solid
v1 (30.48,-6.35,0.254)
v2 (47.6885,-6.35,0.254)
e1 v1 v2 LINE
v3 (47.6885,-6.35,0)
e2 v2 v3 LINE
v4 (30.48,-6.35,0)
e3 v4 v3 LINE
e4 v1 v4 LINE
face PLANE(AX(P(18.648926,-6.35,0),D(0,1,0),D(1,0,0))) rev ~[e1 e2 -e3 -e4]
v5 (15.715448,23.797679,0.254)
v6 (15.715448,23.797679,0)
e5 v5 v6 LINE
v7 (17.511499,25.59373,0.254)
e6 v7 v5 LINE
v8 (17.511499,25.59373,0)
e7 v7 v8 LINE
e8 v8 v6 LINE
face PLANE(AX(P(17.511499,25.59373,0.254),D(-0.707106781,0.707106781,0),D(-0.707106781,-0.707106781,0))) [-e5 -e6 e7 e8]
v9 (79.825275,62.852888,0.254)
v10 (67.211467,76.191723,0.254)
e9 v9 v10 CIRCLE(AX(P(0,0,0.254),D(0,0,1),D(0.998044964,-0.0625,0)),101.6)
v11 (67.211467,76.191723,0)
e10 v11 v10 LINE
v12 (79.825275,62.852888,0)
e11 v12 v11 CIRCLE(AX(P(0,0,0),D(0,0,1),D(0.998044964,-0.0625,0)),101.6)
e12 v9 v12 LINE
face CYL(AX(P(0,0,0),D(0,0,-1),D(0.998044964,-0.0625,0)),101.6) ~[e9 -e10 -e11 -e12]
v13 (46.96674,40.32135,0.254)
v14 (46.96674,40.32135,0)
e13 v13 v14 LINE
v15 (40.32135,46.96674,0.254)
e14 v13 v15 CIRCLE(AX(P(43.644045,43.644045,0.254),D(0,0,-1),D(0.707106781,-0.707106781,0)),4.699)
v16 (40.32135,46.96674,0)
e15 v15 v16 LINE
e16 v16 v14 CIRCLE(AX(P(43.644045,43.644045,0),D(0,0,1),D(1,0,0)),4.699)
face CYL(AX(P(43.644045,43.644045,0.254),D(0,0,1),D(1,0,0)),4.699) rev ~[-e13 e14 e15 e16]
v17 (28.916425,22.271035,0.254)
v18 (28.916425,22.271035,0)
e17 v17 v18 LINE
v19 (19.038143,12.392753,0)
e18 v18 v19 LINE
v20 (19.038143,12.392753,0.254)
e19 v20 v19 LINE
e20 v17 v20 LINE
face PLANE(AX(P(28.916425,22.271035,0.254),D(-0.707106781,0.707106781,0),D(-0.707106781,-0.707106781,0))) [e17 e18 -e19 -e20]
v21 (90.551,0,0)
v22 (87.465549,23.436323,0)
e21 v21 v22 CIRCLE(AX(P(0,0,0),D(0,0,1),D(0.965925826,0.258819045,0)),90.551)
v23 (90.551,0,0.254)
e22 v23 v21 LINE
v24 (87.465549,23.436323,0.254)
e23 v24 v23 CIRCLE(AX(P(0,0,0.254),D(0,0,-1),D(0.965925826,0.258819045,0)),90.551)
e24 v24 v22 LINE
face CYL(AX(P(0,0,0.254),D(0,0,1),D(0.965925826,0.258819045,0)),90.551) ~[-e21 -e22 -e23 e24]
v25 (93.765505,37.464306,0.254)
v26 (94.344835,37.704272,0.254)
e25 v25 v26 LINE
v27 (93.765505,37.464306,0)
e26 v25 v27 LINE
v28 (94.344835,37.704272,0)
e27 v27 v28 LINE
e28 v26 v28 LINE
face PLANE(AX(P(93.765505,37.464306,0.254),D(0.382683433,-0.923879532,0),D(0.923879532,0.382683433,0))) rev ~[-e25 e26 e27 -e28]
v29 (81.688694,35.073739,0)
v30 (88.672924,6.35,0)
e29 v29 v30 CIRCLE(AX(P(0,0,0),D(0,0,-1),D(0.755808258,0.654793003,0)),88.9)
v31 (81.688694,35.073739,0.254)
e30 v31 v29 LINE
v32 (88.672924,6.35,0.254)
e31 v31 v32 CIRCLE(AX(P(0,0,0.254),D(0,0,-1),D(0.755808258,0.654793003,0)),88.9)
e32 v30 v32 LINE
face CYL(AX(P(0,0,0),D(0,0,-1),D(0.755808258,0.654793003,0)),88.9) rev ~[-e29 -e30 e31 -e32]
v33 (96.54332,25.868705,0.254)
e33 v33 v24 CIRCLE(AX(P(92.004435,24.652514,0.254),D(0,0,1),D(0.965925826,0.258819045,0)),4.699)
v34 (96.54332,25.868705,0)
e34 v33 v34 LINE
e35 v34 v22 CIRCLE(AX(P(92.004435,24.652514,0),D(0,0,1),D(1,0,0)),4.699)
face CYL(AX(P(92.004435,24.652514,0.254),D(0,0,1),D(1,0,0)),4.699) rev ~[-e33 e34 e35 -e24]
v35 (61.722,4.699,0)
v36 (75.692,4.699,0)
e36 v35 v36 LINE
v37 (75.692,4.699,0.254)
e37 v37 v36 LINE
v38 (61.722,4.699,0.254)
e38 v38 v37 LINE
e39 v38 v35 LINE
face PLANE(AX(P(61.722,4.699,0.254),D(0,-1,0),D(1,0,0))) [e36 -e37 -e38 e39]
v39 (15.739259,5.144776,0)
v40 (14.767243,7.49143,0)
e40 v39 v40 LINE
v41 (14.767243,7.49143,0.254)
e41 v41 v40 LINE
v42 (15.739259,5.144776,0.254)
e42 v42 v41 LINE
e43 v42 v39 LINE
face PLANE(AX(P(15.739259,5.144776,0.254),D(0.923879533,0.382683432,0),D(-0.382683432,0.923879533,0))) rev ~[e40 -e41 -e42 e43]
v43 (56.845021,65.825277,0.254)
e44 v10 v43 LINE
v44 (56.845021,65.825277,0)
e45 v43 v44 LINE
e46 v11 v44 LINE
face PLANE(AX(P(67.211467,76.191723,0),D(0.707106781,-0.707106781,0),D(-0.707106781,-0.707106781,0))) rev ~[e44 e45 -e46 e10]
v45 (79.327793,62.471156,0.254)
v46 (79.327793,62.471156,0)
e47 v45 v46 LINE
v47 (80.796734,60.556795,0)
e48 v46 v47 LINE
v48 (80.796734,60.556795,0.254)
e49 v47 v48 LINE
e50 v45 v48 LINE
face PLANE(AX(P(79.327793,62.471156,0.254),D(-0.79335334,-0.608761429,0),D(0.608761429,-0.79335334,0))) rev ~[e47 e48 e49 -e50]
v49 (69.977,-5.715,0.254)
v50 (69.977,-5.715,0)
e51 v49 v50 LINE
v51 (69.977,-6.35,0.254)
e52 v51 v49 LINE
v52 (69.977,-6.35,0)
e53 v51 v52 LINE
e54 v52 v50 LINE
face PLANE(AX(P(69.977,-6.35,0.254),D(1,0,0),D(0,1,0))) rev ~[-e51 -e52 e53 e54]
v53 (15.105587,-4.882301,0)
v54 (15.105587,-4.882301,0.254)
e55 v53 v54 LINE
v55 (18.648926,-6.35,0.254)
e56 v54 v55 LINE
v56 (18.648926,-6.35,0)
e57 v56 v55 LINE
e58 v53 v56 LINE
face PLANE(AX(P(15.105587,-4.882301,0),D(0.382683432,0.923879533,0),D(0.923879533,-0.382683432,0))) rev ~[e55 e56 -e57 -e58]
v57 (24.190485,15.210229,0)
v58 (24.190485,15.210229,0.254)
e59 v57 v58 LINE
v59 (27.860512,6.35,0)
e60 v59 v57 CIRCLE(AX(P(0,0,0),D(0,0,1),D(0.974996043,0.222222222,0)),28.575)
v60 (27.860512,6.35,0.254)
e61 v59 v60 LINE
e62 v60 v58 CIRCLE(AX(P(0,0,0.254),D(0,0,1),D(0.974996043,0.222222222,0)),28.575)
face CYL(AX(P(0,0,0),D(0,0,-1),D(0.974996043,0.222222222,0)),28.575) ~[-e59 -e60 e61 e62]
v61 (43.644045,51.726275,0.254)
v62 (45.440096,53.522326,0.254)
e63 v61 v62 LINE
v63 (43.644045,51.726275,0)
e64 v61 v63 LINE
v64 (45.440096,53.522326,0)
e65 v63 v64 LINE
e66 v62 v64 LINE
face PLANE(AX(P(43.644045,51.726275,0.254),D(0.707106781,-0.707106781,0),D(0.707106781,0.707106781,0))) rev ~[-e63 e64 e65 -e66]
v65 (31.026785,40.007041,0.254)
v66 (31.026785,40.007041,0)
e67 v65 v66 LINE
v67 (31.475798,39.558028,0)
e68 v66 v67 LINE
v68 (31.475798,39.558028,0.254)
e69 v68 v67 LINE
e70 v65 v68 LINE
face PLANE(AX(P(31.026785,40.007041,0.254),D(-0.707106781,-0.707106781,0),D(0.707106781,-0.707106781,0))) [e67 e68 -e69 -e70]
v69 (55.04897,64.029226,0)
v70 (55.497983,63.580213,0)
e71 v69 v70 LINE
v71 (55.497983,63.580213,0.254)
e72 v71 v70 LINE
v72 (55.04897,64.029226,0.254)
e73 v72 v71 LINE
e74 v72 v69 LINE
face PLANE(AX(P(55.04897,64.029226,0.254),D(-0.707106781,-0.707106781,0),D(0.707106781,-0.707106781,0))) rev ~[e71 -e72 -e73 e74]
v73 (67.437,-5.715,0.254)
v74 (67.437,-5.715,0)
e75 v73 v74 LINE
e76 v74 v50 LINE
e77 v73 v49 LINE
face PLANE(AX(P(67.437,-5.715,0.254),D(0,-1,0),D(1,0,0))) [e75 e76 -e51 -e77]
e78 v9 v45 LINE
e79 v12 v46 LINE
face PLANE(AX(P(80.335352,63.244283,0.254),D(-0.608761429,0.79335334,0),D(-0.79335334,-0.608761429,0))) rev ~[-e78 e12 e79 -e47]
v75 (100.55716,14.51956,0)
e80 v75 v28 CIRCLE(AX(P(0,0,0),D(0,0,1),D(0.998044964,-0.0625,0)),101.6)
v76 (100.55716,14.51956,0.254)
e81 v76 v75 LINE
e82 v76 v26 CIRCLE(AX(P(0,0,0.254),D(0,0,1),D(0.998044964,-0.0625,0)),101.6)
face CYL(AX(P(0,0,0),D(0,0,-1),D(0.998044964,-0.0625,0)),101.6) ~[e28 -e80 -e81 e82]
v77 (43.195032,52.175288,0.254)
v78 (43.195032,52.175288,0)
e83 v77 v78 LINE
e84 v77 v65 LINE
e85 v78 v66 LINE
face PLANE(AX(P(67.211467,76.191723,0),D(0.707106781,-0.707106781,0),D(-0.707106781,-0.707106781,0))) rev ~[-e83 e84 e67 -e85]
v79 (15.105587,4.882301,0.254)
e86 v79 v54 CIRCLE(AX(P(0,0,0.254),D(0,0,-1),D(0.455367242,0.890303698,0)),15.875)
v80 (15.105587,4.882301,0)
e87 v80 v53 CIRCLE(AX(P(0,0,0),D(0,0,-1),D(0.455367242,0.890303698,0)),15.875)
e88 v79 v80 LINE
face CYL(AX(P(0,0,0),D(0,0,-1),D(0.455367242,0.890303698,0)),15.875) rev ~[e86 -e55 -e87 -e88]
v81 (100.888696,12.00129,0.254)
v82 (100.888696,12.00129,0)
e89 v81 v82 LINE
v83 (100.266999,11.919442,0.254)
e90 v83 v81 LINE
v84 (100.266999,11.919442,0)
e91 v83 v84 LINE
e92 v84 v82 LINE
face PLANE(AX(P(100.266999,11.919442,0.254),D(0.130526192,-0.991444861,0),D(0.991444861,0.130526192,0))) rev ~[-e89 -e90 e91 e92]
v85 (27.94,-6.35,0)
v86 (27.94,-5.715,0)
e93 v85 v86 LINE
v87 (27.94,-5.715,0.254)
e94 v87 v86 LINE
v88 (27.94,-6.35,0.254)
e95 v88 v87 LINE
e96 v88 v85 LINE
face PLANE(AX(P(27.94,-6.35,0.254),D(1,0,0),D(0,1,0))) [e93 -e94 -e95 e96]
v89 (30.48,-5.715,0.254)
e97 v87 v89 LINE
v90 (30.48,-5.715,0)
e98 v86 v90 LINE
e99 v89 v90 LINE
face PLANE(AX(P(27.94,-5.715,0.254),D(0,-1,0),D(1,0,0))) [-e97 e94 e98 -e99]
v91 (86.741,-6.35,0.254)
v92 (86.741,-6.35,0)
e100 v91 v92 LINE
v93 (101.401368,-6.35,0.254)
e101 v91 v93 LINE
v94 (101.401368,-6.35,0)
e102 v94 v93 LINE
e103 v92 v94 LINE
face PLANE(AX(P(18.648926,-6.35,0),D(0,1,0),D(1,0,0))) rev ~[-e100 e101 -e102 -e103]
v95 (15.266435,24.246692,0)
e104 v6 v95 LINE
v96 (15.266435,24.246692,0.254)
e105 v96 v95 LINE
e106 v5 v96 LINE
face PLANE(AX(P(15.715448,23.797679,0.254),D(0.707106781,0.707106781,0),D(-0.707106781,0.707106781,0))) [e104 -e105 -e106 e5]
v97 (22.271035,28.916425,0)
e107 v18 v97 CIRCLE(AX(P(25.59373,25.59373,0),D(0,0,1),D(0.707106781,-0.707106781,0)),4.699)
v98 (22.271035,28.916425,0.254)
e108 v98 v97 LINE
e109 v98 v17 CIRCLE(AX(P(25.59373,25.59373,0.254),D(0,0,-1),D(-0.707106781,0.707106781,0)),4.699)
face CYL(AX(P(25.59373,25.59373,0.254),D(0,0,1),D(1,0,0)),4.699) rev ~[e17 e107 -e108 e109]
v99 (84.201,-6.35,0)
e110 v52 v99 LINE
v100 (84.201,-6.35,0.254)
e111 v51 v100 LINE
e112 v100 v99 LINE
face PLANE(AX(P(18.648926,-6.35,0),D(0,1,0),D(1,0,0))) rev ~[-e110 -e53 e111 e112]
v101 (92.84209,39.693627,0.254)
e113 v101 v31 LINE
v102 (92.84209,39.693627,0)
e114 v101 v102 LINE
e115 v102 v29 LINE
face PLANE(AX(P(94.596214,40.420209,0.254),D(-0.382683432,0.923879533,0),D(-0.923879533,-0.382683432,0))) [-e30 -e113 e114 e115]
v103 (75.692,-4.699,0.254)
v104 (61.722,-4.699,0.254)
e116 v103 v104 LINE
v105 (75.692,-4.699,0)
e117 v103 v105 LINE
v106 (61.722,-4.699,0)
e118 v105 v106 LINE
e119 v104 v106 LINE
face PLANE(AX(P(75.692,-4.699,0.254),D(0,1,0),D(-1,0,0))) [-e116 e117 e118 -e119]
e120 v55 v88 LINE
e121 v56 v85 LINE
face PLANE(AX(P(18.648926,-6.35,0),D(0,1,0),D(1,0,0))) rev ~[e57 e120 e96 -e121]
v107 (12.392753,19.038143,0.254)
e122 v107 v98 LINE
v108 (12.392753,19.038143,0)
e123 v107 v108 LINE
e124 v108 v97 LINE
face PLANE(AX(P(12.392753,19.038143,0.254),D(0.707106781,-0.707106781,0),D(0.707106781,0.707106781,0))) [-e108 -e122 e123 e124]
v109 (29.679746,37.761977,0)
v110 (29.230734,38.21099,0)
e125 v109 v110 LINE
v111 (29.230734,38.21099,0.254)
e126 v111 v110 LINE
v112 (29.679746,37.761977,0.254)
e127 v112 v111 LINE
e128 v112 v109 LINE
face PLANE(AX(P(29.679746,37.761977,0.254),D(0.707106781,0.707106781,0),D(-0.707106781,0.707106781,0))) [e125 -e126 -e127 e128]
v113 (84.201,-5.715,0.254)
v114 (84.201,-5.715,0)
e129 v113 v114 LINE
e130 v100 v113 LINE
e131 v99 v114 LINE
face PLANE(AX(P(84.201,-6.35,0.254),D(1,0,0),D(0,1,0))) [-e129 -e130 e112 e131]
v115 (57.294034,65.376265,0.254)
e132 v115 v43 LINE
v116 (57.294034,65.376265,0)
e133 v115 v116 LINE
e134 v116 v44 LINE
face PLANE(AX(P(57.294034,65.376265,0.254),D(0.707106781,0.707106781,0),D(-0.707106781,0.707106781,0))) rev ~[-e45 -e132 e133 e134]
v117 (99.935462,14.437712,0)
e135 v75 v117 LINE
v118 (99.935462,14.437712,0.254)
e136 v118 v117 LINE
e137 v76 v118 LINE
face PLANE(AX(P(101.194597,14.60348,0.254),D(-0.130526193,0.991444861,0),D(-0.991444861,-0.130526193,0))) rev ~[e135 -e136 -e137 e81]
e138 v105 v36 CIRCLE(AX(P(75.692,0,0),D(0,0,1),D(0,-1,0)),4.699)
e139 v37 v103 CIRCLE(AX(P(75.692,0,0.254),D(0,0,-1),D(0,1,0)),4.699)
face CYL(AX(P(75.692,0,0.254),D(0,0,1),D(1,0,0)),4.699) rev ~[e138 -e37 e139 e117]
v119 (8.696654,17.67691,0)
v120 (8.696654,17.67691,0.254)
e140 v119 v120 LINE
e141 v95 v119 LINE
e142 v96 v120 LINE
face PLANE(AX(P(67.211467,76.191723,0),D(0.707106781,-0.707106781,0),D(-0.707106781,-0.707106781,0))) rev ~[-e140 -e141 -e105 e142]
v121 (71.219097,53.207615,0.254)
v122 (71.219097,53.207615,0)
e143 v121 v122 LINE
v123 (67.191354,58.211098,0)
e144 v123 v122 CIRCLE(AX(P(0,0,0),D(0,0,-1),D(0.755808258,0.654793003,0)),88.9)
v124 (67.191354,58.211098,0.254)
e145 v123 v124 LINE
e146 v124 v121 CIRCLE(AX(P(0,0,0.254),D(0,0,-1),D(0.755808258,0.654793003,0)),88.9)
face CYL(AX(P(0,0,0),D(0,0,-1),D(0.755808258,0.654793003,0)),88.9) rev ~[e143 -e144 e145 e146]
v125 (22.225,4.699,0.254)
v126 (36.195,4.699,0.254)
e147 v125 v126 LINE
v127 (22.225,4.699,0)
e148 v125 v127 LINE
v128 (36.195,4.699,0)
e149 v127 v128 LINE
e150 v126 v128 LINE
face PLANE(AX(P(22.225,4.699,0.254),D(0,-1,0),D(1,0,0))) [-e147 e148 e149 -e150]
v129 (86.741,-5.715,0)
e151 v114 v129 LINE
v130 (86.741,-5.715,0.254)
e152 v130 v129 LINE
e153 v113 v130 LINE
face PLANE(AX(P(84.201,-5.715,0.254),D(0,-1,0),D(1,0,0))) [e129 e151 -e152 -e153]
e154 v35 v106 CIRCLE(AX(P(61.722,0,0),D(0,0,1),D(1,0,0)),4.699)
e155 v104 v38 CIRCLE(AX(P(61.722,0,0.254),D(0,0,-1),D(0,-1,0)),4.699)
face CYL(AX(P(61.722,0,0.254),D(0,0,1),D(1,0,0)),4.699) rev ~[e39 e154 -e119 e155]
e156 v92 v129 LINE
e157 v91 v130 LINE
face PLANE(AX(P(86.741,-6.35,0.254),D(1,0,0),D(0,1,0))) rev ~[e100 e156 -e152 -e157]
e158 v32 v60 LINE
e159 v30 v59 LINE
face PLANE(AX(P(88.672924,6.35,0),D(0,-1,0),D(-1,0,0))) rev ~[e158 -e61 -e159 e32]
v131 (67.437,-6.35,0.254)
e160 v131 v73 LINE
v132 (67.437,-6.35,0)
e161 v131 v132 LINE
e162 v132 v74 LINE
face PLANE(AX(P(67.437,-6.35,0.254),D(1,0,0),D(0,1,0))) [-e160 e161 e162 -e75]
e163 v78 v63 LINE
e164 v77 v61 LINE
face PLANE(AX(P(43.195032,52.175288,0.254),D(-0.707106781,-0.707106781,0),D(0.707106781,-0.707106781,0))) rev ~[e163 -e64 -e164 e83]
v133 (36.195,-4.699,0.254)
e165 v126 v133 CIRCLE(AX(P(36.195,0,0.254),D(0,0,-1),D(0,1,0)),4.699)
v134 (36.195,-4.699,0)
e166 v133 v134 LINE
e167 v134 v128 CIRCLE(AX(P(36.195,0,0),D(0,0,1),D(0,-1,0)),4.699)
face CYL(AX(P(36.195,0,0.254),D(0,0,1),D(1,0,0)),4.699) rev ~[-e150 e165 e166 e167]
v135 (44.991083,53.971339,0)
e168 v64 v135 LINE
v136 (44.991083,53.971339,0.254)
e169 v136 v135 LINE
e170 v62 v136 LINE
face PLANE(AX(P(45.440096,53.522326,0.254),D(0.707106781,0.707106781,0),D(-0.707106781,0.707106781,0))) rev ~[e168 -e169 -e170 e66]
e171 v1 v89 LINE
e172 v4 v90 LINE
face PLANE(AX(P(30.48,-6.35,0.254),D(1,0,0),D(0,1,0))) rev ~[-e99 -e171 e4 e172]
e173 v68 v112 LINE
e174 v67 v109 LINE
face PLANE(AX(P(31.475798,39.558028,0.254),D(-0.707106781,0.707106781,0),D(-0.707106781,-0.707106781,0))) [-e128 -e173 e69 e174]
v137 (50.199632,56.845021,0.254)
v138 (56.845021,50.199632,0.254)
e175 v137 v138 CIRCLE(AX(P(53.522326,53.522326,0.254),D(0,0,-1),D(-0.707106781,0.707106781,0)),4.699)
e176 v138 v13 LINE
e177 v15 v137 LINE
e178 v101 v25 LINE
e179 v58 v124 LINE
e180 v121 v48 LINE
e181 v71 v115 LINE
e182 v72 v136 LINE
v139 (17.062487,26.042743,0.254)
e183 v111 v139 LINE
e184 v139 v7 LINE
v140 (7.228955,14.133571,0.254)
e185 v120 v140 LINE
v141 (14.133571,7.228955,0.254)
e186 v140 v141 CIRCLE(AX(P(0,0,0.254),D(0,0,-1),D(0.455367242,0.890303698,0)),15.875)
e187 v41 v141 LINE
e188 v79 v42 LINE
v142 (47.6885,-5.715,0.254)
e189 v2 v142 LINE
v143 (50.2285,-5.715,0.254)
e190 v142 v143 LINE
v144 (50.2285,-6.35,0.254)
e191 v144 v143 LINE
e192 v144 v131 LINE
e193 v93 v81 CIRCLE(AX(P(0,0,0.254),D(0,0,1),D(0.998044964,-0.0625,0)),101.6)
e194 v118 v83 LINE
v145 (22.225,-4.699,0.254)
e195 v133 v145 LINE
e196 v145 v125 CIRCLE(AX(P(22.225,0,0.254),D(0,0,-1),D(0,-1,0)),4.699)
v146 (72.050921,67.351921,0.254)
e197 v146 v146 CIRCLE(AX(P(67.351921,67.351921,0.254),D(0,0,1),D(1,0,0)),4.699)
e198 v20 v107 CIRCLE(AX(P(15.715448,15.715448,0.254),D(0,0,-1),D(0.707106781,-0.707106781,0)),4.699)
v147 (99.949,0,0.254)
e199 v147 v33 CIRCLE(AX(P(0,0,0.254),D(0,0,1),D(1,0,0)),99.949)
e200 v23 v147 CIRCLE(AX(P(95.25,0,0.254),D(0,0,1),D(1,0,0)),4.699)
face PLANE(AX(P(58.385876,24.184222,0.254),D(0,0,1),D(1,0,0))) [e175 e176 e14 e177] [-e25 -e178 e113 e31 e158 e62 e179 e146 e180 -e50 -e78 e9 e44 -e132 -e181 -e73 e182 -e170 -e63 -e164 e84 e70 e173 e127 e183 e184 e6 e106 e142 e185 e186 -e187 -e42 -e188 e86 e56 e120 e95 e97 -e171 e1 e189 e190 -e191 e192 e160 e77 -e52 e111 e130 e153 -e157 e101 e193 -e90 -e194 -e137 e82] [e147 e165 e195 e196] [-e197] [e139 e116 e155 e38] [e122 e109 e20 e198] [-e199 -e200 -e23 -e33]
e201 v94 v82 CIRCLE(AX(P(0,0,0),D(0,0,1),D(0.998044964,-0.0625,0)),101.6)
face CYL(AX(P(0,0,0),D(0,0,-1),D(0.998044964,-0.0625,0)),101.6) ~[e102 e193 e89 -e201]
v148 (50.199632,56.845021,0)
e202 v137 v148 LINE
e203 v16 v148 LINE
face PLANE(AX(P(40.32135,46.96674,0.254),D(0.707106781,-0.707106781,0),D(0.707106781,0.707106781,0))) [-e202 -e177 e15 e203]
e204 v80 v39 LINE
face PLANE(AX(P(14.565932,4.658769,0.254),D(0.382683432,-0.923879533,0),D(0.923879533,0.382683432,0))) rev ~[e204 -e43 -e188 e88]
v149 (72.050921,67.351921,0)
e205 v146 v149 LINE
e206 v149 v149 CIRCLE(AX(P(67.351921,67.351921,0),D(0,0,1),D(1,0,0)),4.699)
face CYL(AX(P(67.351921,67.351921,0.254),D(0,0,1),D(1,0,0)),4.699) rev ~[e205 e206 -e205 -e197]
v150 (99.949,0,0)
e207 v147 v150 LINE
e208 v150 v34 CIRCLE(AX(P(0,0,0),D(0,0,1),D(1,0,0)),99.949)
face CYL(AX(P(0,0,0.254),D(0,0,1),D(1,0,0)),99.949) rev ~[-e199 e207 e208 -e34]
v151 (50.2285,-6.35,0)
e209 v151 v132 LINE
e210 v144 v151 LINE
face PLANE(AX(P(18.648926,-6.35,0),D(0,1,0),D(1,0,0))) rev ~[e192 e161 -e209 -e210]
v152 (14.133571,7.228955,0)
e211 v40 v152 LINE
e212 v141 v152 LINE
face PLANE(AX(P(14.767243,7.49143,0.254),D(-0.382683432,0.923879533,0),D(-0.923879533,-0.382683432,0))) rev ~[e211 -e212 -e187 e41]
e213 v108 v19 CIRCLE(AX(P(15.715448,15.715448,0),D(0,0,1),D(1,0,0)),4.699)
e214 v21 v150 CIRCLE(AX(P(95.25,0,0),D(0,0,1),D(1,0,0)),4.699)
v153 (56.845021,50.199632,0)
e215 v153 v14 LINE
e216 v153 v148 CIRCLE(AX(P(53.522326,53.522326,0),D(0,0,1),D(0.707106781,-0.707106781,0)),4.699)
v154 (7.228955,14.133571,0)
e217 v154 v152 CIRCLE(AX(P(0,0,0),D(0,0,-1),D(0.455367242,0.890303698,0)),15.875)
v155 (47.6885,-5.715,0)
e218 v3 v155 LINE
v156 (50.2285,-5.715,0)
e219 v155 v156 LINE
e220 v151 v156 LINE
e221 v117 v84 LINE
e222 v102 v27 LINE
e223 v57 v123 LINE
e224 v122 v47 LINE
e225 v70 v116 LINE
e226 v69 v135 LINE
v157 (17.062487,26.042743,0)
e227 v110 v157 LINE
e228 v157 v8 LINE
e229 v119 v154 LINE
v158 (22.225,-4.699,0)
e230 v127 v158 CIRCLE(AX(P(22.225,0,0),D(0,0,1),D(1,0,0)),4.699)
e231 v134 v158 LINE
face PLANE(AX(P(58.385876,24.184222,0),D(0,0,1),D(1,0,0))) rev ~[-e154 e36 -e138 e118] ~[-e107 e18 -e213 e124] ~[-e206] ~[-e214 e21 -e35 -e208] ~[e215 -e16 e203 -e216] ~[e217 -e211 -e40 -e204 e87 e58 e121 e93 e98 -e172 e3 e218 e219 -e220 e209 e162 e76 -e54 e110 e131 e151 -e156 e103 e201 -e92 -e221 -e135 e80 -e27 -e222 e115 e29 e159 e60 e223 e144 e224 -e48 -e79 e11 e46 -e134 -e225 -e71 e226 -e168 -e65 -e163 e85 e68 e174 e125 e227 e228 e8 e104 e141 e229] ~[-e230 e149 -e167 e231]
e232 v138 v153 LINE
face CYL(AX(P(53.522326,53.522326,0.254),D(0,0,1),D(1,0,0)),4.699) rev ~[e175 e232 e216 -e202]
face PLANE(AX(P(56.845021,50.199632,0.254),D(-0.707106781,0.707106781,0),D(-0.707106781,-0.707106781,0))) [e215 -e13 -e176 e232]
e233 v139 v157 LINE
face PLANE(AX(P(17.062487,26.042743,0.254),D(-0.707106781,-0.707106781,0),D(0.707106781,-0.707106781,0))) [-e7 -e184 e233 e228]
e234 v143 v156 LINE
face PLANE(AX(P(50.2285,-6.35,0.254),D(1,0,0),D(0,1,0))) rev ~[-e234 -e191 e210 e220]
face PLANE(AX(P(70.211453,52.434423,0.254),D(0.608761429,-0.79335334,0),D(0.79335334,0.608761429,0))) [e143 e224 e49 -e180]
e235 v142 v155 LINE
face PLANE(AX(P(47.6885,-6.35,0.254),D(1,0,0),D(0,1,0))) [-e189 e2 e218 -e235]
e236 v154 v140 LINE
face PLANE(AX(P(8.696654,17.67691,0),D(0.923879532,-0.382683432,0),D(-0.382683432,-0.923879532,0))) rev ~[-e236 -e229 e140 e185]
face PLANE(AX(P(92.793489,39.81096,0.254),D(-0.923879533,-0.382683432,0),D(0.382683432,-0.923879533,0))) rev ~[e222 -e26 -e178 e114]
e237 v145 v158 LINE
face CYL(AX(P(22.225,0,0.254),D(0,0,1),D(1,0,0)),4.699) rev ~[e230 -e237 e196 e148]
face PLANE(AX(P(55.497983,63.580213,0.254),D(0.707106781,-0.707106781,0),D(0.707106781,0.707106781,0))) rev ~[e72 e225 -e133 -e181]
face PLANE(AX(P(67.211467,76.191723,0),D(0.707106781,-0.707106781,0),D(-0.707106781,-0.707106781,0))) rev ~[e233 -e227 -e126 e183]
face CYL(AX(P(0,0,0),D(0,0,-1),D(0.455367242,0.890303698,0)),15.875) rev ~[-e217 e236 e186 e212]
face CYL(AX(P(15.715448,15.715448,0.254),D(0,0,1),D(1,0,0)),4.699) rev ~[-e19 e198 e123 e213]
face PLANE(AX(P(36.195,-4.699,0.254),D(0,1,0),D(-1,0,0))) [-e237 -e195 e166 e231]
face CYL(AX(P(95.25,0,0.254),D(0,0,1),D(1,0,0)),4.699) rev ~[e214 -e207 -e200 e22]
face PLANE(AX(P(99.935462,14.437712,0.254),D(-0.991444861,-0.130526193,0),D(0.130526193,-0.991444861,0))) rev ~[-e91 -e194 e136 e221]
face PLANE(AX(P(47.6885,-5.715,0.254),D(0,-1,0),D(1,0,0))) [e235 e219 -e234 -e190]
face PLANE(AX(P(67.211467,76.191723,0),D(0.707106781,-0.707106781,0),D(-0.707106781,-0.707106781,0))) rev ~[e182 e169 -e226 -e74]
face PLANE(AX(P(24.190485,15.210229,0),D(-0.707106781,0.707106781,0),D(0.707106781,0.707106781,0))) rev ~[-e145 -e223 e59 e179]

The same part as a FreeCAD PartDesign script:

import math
import FreeCAD as App
import Part
import Sketcher

V = App.Vector
Q = App.Units.Quantity


def add_polygon(sketch, points):
    """Adds a closed chain of lines whose ends are joined by coincident constraints."""
    first, n = sketch.GeometryCount, len(points)
    for a, b in zip(points, points[1:] + points[:1]):
        sketch.addGeometry(Part.LineSegment(App.Vector(*a, 0), App.Vector(*b, 0)), False)
    for i in range(n):
        sketch.addConstraint(Sketcher.Constraint("Coincident", first + i, 2, first + (i + 1) % n, 1))

doc = App.newDocument("Part")
body = doc.addObject("PartDesign::Body", "Body")

sketch1 = body.newObject("Sketcher::SketchObject", "Sketch")
sketch1.AttachmentSupport = (doc.getObject("XY_Plane"), [""])
sketch1.MapMode = "FlatFace"
sketch1.addGeometry(Part.LineSegment(V(67.2, 76.2, 0), V(8.7, 17.7, 0)), False)
sketch1.addGeometry(Part.LineSegment(V(8.7, 17.7, 0), V(7.2, 14.1, 0)), False)
sketch1.addGeometry(Part.ArcOfCircle(Part.Circle(V(0, 0, 0), V(0, 0, 1), 15.9), math.radians(-18), math.radians(63)), False)
sketch1.addGeometry(Part.LineSegment(V(15.1, -4.9, 0), V(18.6, -6.3, 0)), False)
sketch1.addGeometry(Part.LineSegment(V(18.6, -6.3, 0), V(101.4, -6.3, 0)), False)
sketch1.addGeometry(Part.ArcOfCircle(Part.Circle(V(0, 0, 0), V(0, 0, 1), 101.6), math.radians(-4), math.radians(49)), False)
sketch1.addGeometry(Part.ArcOfCircle(Part.Circle(V(0, 0, 0), V(0, 0, 1), 88.9), math.radians(4), math.radians(41)), False)
sketch1.addGeometry(Part.LineSegment(V(88.7, 6.3, 0), V(27.9, 6.3, 0)), False)
sketch1.addGeometry(Part.ArcOfCircle(Part.Circle(V(0, 0, 0), V(0, 0, 1), 28.6), math.radians(12.84), math.radians(32.16)), False)
sketch1.addGeometry(Part.LineSegment(V(24.2, 15.2, 0), V(67.2, 58.2, 0)), False)
sketch1.addConstraint(Sketcher.Constraint("Coincident", 0, 2, 1, 1))
sketch1.addConstraint(Sketcher.Constraint("Coincident", 1, 2, 2, 2))
sketch1.addConstraint(Sketcher.Constraint("Coincident", 2, 1, 3, 1))
sketch1.addConstraint(Sketcher.Constraint("Coincident", 3, 2, 4, 1))
sketch1.addConstraint(Sketcher.Constraint("Coincident", 4, 2, 5, 1))
sketch1.addConstraint(Sketcher.Constraint("Coincident", 5, 2, 0, 1))
sketch1.addConstraint(Sketcher.Constraint("Coincident", 6, 1, 7, 1))
sketch1.addConstraint(Sketcher.Constraint("Coincident", 7, 2, 8, 1))
sketch1.addConstraint(Sketcher.Constraint("Coincident", 8, 2, 9, 1))
sketch1.addConstraint(Sketcher.Constraint("Coincident", 9, 2, 6, 2))
sketch1.addConstraint(Sketcher.Constraint("Horizontal", 4))
sketch1.addConstraint(Sketcher.Constraint("Horizontal", 7))
sketch1.addConstraint(Sketcher.Constraint("Coincident", 2, 3, -1, 1))
sketch1.addConstraint(Sketcher.Constraint("Coincident", 5, 3, -1, 1))
sketch1.addConstraint(Sketcher.Constraint("Coincident", 6, 3, -1, 1))
sketch1.addConstraint(Sketcher.Constraint("Coincident", 8, 3, -1, 1))
sketch1.addConstraint(Sketcher.Constraint("Perpendicular", 1, 3))
sketch1.addConstraint(Sketcher.Constraint("Parallel", 0, 9))
sketch1.addConstraint(Sketcher.Constraint("Equal", 1, 3))
sketch1.addConstraint(Sketcher.Constraint("Radius", 5, Q("4 in")))
sketch1.addConstraint(Sketcher.Constraint("Radius", 6, Q("3.5 in")))
sketch1.addConstraint(Sketcher.Constraint("Angle", 0, Q("-135 deg")))
sketch1.addConstraint(Sketcher.Constraint("Radius", 2, Q("0.625 in")))
sketch1.addConstraint(Sketcher.Constraint("Radius", 8, Q("1.125 in")))
sketch1.addConstraint(Sketcher.Constraint("Angle", 1, Q("-112.5 deg")))
sketch1.addConstraint(Sketcher.Constraint("DistanceY", 4, 2, 6, 1, Q("0.5 in")))
sketch1.addConstraint(Sketcher.Constraint("DistanceY", 3, 2, -1, 1, Q("0.25 in")))
sketch1.addConstraint(Sketcher.Constraint("DistanceY", 2, 1, -1, 1, 4.882301))
sketch1.addConstraint(Sketcher.Constraint("DistanceY", -1, 1, 9, 2, 58.211098))
sketch1.addConstraint(Sketcher.Constraint("DistanceX", 5, 2, 4, 2, 34.189901))
pad1 = body.newObject("PartDesign::Pad", "Pad")
pad1.Profile = sketch1
pad1.Length = Q("0.01 in")

sketch2 = body.newObject("Sketcher::SketchObject", "Sketch001")
sketch2.AttachmentSupport = (doc.getObject("XY_Plane"), [""])
sketch2.MapMode = "FlatFace"
sketch2.AttachmentOffset = App.Placement(V(0, 0, 0.01 * 25.4), App.Rotation())
sketch2.addGeometry(Part.Circle(V(22.2, 0, 0), V(0, 0, 1), 4.7), False)
sketch2.addGeometry(Part.Circle(V(36.2, 0, 0), V(0, 0, 1), 4.7), False)
sketch2.addGeometry(Part.Circle(V(61.7, 0, 0), V(0, 0, 1), 4.7), False)
sketch2.addGeometry(Part.Circle(V(75.7, 0, 0), V(0, 0, 1), 4.7), False)
sketch2.addGeometry(Part.Circle(V(95.2, 0, 0), V(0, 0, 1), 4.7), False)
sketch2.addGeometry(Part.Circle(V(15.7, 15.7, 0), V(0, 0, 1), 4.7), False)
sketch2.addGeometry(Part.Circle(V(25.6, 25.6, 0), V(0, 0, 1), 4.7), False)
sketch2.addGeometry(Part.Circle(V(43.6, 43.6, 0), V(0, 0, 1), 4.7), False)
sketch2.addGeometry(Part.Circle(V(53.5, 53.5, 0), V(0, 0, 1), 4.7), False)
sketch2.addGeometry(Part.Circle(V(92, 24.7, 0), V(0, 0, 1), 4.7), False)
sketch2.addGeometry(Part.Circle(V(82.5, 47.6, 0), V(0, 0, 1), 4.7), False)
sketch2.addGeometry(Part.Circle(V(67.4, 67.4, 0), V(0, 0, 1), 4.7), False)
sketch2.addConstraint(Sketcher.Constraint("Equal", 0, 1))
sketch2.addConstraint(Sketcher.Constraint("Equal", 1, 2))
sketch2.addConstraint(Sketcher.Constraint("Equal", 2, 3))
sketch2.addConstraint(Sketcher.Constraint("Equal", 3, 4))
sketch2.addConstraint(Sketcher.Constraint("Equal", 4, 5))
sketch2.addConstraint(Sketcher.Constraint("Equal", 5, 6))
sketch2.addConstraint(Sketcher.Constraint("Equal", 6, 7))
sketch2.addConstraint(Sketcher.Constraint("Equal", 7, 8))
sketch2.addConstraint(Sketcher.Constraint("Equal", 8, 9))
sketch2.addConstraint(Sketcher.Constraint("Equal", 9, 10))
sketch2.addConstraint(Sketcher.Constraint("Equal", 10, 11))
sketch2.addConstraint(Sketcher.Constraint("PointOnObject", 0, 3, -1))
sketch2.addConstraint(Sketcher.Constraint("PointOnObject", 1, 3, -1))
sketch2.addConstraint(Sketcher.Constraint("PointOnObject", 2, 3, -1))
sketch2.addConstraint(Sketcher.Constraint("PointOnObject", 3, 3, -1))
sketch2.addConstraint(Sketcher.Constraint("PointOnObject", 4, 3, -1))
sketch2.addConstraint(Sketcher.Constraint("Diameter", 0, Q("0.37 in")))
sketch2.addConstraint(Sketcher.Constraint("DistanceX", -1, 1, 2, 3, Q("2.43 in")))
sketch2.addConstraint(Sketcher.Constraint("DistanceX", -1, 1, 3, 3, Q("2.98 in")))
sketch2.addConstraint(Sketcher.Constraint("DistanceX", -1, 1, 4, 3, Q("3.75 in")))
sketch2.addConstraint(Sketcher.Constraint("DistanceX", 0, 3, 1, 3, Q("0.55 in")))
sketch2.addConstraint(Sketcher.Constraint("DistanceX", -1, 1, 0, 3, Q("0.875 in")))
sketch2.addConstraint(Sketcher.Constraint("DistanceY", -1, 1, 10, 3, Q("1.875 in")))
sketch2.addConstraint(Sketcher.Constraint("DistanceX", 11, 3, 10, 3, 15.136999))
sketch2.addConstraint(Sketcher.Constraint("DistanceX", -1, 1, 5, 3, 15.715448))
sketch2.addConstraint(Sketcher.Constraint("DistanceY", -1, 1, 5, 3, 15.715448))
sketch2.addConstraint(Sketcher.Constraint("DistanceX", -1, 1, 6, 3, 25.59373))
sketch2.addConstraint(Sketcher.Constraint("DistanceY", -1, 1, 6, 3, 25.59373))
sketch2.addConstraint(Sketcher.Constraint("DistanceX", -1, 1, 10, 3, 82.48892))
sketch2.addConstraint(Sketcher.Constraint("DistanceY", -1, 1, 11, 3, 67.351921))
sketch2.addConstraint(Sketcher.Constraint("DistanceX", 7, 3, 8, 3, 9.878282))
sketch2.addConstraint(Sketcher.Constraint("DistanceY", 7, 3, 8, 3, 9.878282))
sketch2.addConstraint(Sketcher.Constraint("DistanceX", 5, 3, 8, 3, 37.806878))
sketch2.addConstraint(Sketcher.Constraint("DistanceY", 5, 3, 8, 3, 37.806878))
sketch2.addConstraint(Sketcher.Constraint("DistanceX", 8, 3, 9, 3, 38.482108))
sketch2.addConstraint(Sketcher.Constraint("DistanceY", 9, 3, 7, 3, 18.991531))
pocket1 = body.newObject("PartDesign::Pocket", "Pocket")
pocket1.Profile = sketch2
pocket1.Type = "ThroughAll"

sketch3 = body.newObject("Sketcher::SketchObject", "Sketch002")
sketch3.AttachmentSupport = (doc.getObject("XY_Plane"), [""])
sketch3.MapMode = "FlatFace"
sketch3.AttachmentOffset = App.Placement(V(0, 0, 0.01 * 25.4), App.Rotation())
add_polygon(sketch3, [(17.1, 26), (15.3, 24.2), (15.7, 23.8), (17.5, 25.6)])
add_polygon(sketch3, [(45, 54), (43.2, 52.2), (43.6, 51.7), (45.4, 53.5)])
add_polygon(sketch3, [(27.9, -5.7), (27.9, -6.3), (30.5, -6.3), (30.5, -5.7)])
add_polygon(sketch3, [(67.4, -5.7), (67.4, -6.3), (70, -6.3), (70, -5.7)])
add_polygon(sketch3, [(31, 40), (29.2, 38.2), (29.7, 37.8), (31.5, 39.6)])
add_polygon(sketch3, [(56.8, 65.8), (55, 64), (55.5, 63.6), (57.3, 65.4)])
add_polygon(sketch3, [(47.7, -5.7), (47.7, -6.3), (50.2, -6.3), (50.2, -5.7)])
add_polygon(sketch3, [(84.2, -5.7), (84.2, -6.3), (86.7, -6.3), (86.7, -5.7)])
add_polygon(sketch3, [(99.9, 14.4), (100.3, 11.9), (101.5, 12.1), (101.2, 14.6)])
add_polygon(sketch3, [(93.8, 37.5), (94.9, 38), (94, 40.3), (92.8, 39.8)])
add_polygon(sketch3, [(79.3, 62.5), (80.9, 60.5), (81.9, 61.2), (80.3, 63.2)])
add_polygon(sketch3, [(13.6, 7), (14.6, 4.7), (15.7, 5.1), (14.8, 7.5)])
sketch3.addConstraint(Sketcher.Constraint("Vertical", 8))
sketch3.addConstraint(Sketcher.Constraint("Horizontal", 9))
sketch3.addConstraint(Sketcher.Constraint("Vertical", 10))
sketch3.addConstraint(Sketcher.Constraint("Horizontal", 11))
sketch3.addConstraint(Sketcher.Constraint("Vertical", 12))
sketch3.addConstraint(Sketcher.Constraint("Horizontal", 13))
sketch3.addConstraint(Sketcher.Constraint("Vertical", 14))
sketch3.addConstraint(Sketcher.Constraint("Horizontal", 15))
sketch3.addConstraint(Sketcher.Constraint("Vertical", 24))
sketch3.addConstraint(Sketcher.Constraint("Horizontal", 25))
sketch3.addConstraint(Sketcher.Constraint("Vertical", 26))
sketch3.addConstraint(Sketcher.Constraint("Horizontal", 27))
sketch3.addConstraint(Sketcher.Constraint("Vertical", 28))
sketch3.addConstraint(Sketcher.Constraint("Horizontal", 29))
sketch3.addConstraint(Sketcher.Constraint("Vertical", 30))
sketch3.addConstraint(Sketcher.Constraint("Horizontal", 31))
sketch3.addConstraint(Sketcher.Constraint("Perpendicular", 0, 1))
sketch3.addConstraint(Sketcher.Constraint("Perpendicular", 1, 2))
sketch3.addConstraint(Sketcher.Constraint("Perpendicular", 2, 3))
sketch3.addConstraint(Sketcher.Constraint("Perpendicular", 3, 4))
sketch3.addConstraint(Sketcher.Constraint("Perpendicular", 4, 5))
sketch3.addConstraint(Sketcher.Constraint("Perpendicular", 5, 6))
sketch3.addConstraint(Sketcher.Constraint("Perpendicular", 6, 7))
sketch3.addConstraint(Sketcher.Constraint("Perpendicular", 7, 16))
sketch3.addConstraint(Sketcher.Constraint("Perpendicular", 16, 17))
sketch3.addConstraint(Sketcher.Constraint("Perpendicular", 17, 18))
sketch3.addConstraint(Sketcher.Constraint("Perpendicular", 18, 19))
sketch3.addConstraint(Sketcher.Constraint("Perpendicular", 19, 20))
sketch3.addConstraint(Sketcher.Constraint("Perpendicular", 20, 21))
sketch3.addConstraint(Sketcher.Constraint("Perpendicular", 21, 22))
sketch3.addConstraint(Sketcher.Constraint("Perpendicular", 22, 23))
sketch3.addConstraint(Sketcher.Constraint("Perpendicular", 32, 33))
sketch3.addConstraint(Sketcher.Constraint("Perpendicular", 33, 34))
sketch3.addConstraint(Sketcher.Constraint("Perpendicular", 34, 35))
sketch3.addConstraint(Sketcher.Constraint("Perpendicular", 36, 37))
sketch3.addConstraint(Sketcher.Constraint("Perpendicular", 37, 38))
sketch3.addConstraint(Sketcher.Constraint("Perpendicular", 38, 39))
sketch3.addConstraint(Sketcher.Constraint("Perpendicular", 40, 41))
sketch3.addConstraint(Sketcher.Constraint("Perpendicular", 41, 42))
sketch3.addConstraint(Sketcher.Constraint("Perpendicular", 42, 43))
sketch3.addConstraint(Sketcher.Constraint("Parallel", 39, 44))
sketch3.addConstraint(Sketcher.Constraint("Perpendicular", 44, 45))
sketch3.addConstraint(Sketcher.Constraint("Perpendicular", 45, 46))
sketch3.addConstraint(Sketcher.Constraint("Perpendicular", 46, 47))
sketch3.addConstraint(Sketcher.Constraint("Horizontal", 9, 2, 12, 2))
sketch3.addConstraint(Sketcher.Constraint("Horizontal", 11, 2, 14, 2))
sketch3.addConstraint(Sketcher.Constraint("Horizontal", 13, 2, 24, 2))
sketch3.addConstraint(Sketcher.Constraint("Horizontal", 15, 2, 26, 2))
sketch3.addConstraint(Sketcher.Constraint("Horizontal", 25, 2, 28, 2))
sketch3.addConstraint(Sketcher.Constraint("Horizontal", 27, 2, 30, 2))
sketch3.addConstraint(Sketcher.Constraint("Equal", 11, 13))
sketch3.addConstraint(Sketcher.Constraint("Equal", 15, 25))
sketch3.addConstraint(Sketcher.Constraint("Equal", 27, 29))
sketch3.addConstraint(Sketcher.Constraint("Equal", 2, 4))
sketch3.addConstraint(Sketcher.Constraint("Equal", 3, 5))
sketch3.addConstraint(Sketcher.Constraint("Equal", 6, 16))
sketch3.addConstraint(Sketcher.Constraint("Equal", 7, 17))
sketch3.addConstraint(Sketcher.Constraint("Equal", 18, 20))
sketch3.addConstraint(Sketcher.Constraint("Equal", 19, 21))
sketch3.addConstraint(Sketcher.Constraint("Equal", 22, 32))
sketch3.addConstraint(Sketcher.Constraint("Equal", 35, 36))
sketch3.addConstraint(Sketcher.Constraint("Equal", 34, 37))
sketch3.addConstraint(Sketcher.Constraint("Equal", 39, 40))
sketch3.addConstraint(Sketcher.Constraint("Equal", 38, 41))
sketch3.addConstraint(Sketcher.Constraint("Equal", 42, 44))
sketch3.addConstraint(Sketcher.Constraint("Equal", 43, 45))
sketch3.addConstraint(Sketcher.Constraint("DistanceX", 9, 1, 9, 2, Q("0.1 in")))
sketch3.addConstraint(Sketcher.Constraint("Angle", 0, Q("-135 deg")))
sketch3.addConstraint(Sketcher.Constraint("Distance", 0, Q("0.1 in")))
sketch3.addConstraint(Sketcher.Constraint("DistanceX", -1, 1, 8, 2, Q("1.1 in")))
sketch3.addConstraint(Sketcher.Constraint("Angle", 32, Q("-82.5 deg")))
sketch3.addConstraint(Sketcher.Constraint("Angle", 36, Q("22.5 deg")))
sketch3.addConstraint(Sketcher.Constraint("Angle", 40, Q("-52.5 deg")))
sketch3.addConstraint(Sketcher.Constraint("Distance", 33, Q("0.05 in")))
sketch3.addConstraint(Sketcher.Constraint("DistanceY", 8, 2, 8, 1, Q("0.025 in")))
sketch3.addConstraint(Sketcher.Constraint("DistanceY", 8, 2, -1, 1, Q("0.25 in")))
sketch3.addConstraint(Sketcher.Constraint("DistanceX", 13, 2, 28, 2, Q("0.56 in")))
sketch3.addConstraint(Sketcher.Constraint("Distance", 1, Q("0.025 in")))
sketch3.addConstraint(Sketcher.Constraint("DistanceX", -1, 1, 12, 2, Q("2.655 in")))
sketch3.addConstraint(Sketcher.Constraint("DistanceX", -1, 1, 24, 2, Q("1.8775 in")))
sketch3.addConstraint(Sketcher.Constraint("DistanceX", -1, 1, 2, 2, 17.511499))
sketch3.addConstraint(Sketcher.Constraint("DistanceX", -1, 1, 32, 2, 100.266999))
sketch3.addConstraint(Sketcher.Constraint("DistanceX", 16, 2, 4, 2, 13.964298))
sketch3.addConstraint(Sketcher.Constraint("DistanceY", 16, 2, 4, 2, 13.964298))
sketch3.addConstraint(Sketcher.Constraint("DistanceX", 0, 2, 16, 2, 13.964298))
sketch3.addConstraint(Sketcher.Constraint("DistanceY", 0, 2, 16, 2, 13.964298))
sketch3.addConstraint(Sketcher.Constraint("DistanceY", 6, 2, 20, 2, 10.5069))
sketch3.addConstraint(Sketcher.Constraint("DistanceX", 7, 2, 21, 2, 10.5069))
sketch3.addConstraint(Sketcher.Constraint("DistanceY", 35, 2, 36, 2, 23.512602))
sketch3.addConstraint(Sketcher.Constraint("DistanceX", 36, 2, 33, 2, 6.587302))
sketch3.addConstraint(Sketcher.Constraint("DistanceY", 37, 2, 41, 2, 20.932198))
sketch3.addConstraint(Sketcher.Constraint("DistanceY", 41, 2, 22, 2, 4.147099))
sketch3.addConstraint(Sketcher.Constraint("DistanceY", 46, 2, 2, 2, 18.102299))
sketch3.addConstraint(Sketcher.Constraint("DistanceY", -1, 1, 0, 2, 24.246692))
sketch3.addConstraint(Sketcher.Constraint("DistanceX", -1, 1, 42, 2, 80.335352))
sketch3.addConstraint(Sketcher.Constraint("DistanceX", -1, 1, 45, 2, 15.739259))
pocket2 = body.newObject("PartDesign::Pocket", "Pocket001")
pocket2.Profile = sketch3
pocket2.Type = "ThroughAll"

sketch4 = body.newObject("Sketcher::SketchObject", "Sketch003")
sketch4.AttachmentSupport = (doc.getObject("XY_Plane"), [""])
sketch4.MapMode = "FlatFace"
sketch4.AttachmentOffset = App.Placement(V(0, 0, 0.01 * 25.4), App.Rotation())
sketch4.addGeometry(Part.LineSegment(V(22.3, 28.9, 0), V(12.4, 19, 0)), False)
sketch4.addGeometry(Part.ArcOfCircle(Part.Circle(V(15.7, 15.7, 0), V(0, 0, 1), 4.7), math.radians(135), math.radians(315)), False)
sketch4.addGeometry(Part.LineSegment(V(19, 12.4, 0), V(28.9, 22.3, 0)), False)
sketch4.addGeometry(Part.ArcOfCircle(Part.Circle(V(25.6, 25.6, 0), V(0, 0, 1), 4.7), math.radians(-45), math.radians(135)), False)
sketch4.addGeometry(Part.LineSegment(V(50.2, 56.8, 0), V(40.3, 47, 0)), False)
sketch4.addGeometry(Part.ArcOfCircle(Part.Circle(V(43.6, 43.6, 0), V(0, 0, 1), 4.7), math.radians(135), math.radians(315)), False)
sketch4.addGeometry(Part.LineSegment(V(47, 40.3, 0), V(56.8, 50.2, 0)), False)
sketch4.addGeometry(Part.ArcOfCircle(Part.Circle(V(53.5, 53.5, 0), V(0, 0, 1), 4.7), math.radians(-45), math.radians(135)), False)
sketch4.addGeometry(Part.LineSegment(V(36.2, 4.7, 0), V(22.2, 4.7, 0)), False)
sketch4.addGeometry(Part.ArcOfCircle(Part.Circle(V(22.2, 0, 0), V(0, 0, 1), 4.7), math.radians(90), math.radians(270)), False)
sketch4.addGeometry(Part.LineSegment(V(22.2, -4.7, 0), V(36.2, -4.7, 0)), False)
sketch4.addGeometry(Part.ArcOfCircle(Part.Circle(V(36.2, 0, 0), V(0, 0, 1), 4.7), math.radians(-90), math.radians(90)), False)
sketch4.addGeometry(Part.LineSegment(V(75.7, 4.7, 0), V(61.7, 4.7, 0)), False)
sketch4.addGeometry(Part.ArcOfCircle(Part.Circle(V(61.7, 0, 0), V(0, 0, 1), 4.7), math.radians(90), math.radians(270)), False)
sketch4.addGeometry(Part.LineSegment(V(61.7, -4.7, 0), V(75.7, -4.7, 0)), False)
sketch4.addGeometry(Part.ArcOfCircle(Part.Circle(V(75.7, 0, 0), V(0, 0, 1), 4.7), math.radians(-90), math.radians(90)), False)
sketch4.addGeometry(Part.ArcOfCircle(Part.Circle(V(0, 0, 0), V(0, 0, 1), 99.9), math.radians(0), math.radians(15)), False)
sketch4.addGeometry(Part.ArcOfCircle(Part.Circle(V(92, 24.7, 0), V(0, 0, 1), 4.7), math.radians(15), math.radians(195)), False)
sketch4.addGeometry(Part.ArcOfCircle(Part.Circle(V(0, 0, 0), V(0, 0, 1), 90.6), math.radians(0), math.radians(15)), False)
sketch4.addGeometry(Part.ArcOfCircle(Part.Circle(V(95.2, 0, 0), V(0, 0, 1), 4.7), math.radians(180), math.radians(360)), False)
sketch4.addConstraint(Sketcher.Constraint("Tangent", 0, 2, 1, 1))
sketch4.addConstraint(Sketcher.Constraint("Tangent", 1, 2, 2, 1))
sketch4.addConstraint(Sketcher.Constraint("Tangent", 2, 2, 3, 1))
sketch4.addConstraint(Sketcher.Constraint("Tangent", 3, 2, 0, 1))
sketch4.addConstraint(Sketcher.Constraint("Tangent", 4, 2, 5, 1))
sketch4.addConstraint(Sketcher.Constraint("Tangent", 5, 2, 6, 1))
sketch4.addConstraint(Sketcher.Constraint("Tangent", 6, 2, 7, 1))
sketch4.addConstraint(Sketcher.Constraint("Tangent", 7, 2, 4, 1))
sketch4.addConstraint(Sketcher.Constraint("Tangent", 8, 2, 9, 1))
sketch4.addConstraint(Sketcher.Constraint("Tangent", 9, 2, 10, 1))
sketch4.addConstraint(Sketcher.Constraint("Tangent", 10, 2, 11, 1))
sketch4.addConstraint(Sketcher.Constraint("Tangent", 11, 2, 8, 1))
sketch4.addConstraint(Sketcher.Constraint("Tangent", 12, 2, 13, 1))
sketch4.addConstraint(Sketcher.Constraint("Tangent", 13, 2, 14, 1))
sketch4.addConstraint(Sketcher.Constraint("Tangent", 14, 2, 15, 1))
sketch4.addConstraint(Sketcher.Constraint("Tangent", 15, 2, 12, 1))
sketch4.addConstraint(Sketcher.Constraint("Tangent", 16, 2, 17, 1))
sketch4.addConstraint(Sketcher.Constraint("Tangent", 17, 2, 18, 2))
sketch4.addConstraint(Sketcher.Constraint("Tangent", 18, 1, 19, 1))
sketch4.addConstraint(Sketcher.Constraint("Tangent", 19, 2, 16, 1))
sketch4.addConstraint(Sketcher.Constraint("Horizontal", 8))
sketch4.addConstraint(Sketcher.Constraint("Horizontal", 10))
sketch4.addConstraint(Sketcher.Constraint("Horizontal", 12))
sketch4.addConstraint(Sketcher.Constraint("Horizontal", 14))
sketch4.addConstraint(Sketcher.Constraint("Coincident", 16, 3, -1, 1))
sketch4.addConstraint(Sketcher.Constraint("Coincident", 18, 3, -1, 1))
sketch4.addConstraint(Sketcher.Constraint("Equal", 1, 3))
sketch4.addConstraint(Sketcher.Constraint("Equal", 3, 5))
sketch4.addConstraint(Sketcher.Constraint("Equal", 5, 7))
sketch4.addConstraint(Sketcher.Constraint("Equal", 7, 9))
sketch4.addConstraint(Sketcher.Constraint("Equal", 11, 13))
sketch4.addConstraint(Sketcher.Constraint("Equal", 15, 17))
sketch4.addConstraint(Sketcher.Constraint("PointOnObject", 9, 3, -1))
sketch4.addConstraint(Sketcher.Constraint("PointOnObject", 13, 3, -1))
sketch4.addConstraint(Sketcher.Constraint("PointOnObject", 19, 3, -1))
sketch4.addConstraint(Sketcher.Constraint("Parallel", 2, 4))
sketch4.addConstraint(Sketcher.Constraint("Equal", 10, 12))
sketch4.addConstraint(Sketcher.Constraint("Equal", 2, 4))
sketch4.addConstraint(Sketcher.Constraint("Angle", 0, Q("-135 deg")))
sketch4.addConstraint(Sketcher.Constraint("Radius", 1, Q("0.185 in")))
sketch4.addConstraint(Sketcher.Constraint("Radius", 16, Q("3.935 in")))
sketch4.addConstraint(Sketcher.Constraint("DistanceX", 8, 2, 8, 1, Q("0.55 in")))
sketch4.addConstraint(Sketcher.Constraint("Distance", 0, Q("0.55 in")))
sketch4.addConstraint(Sketcher.Constraint("DistanceX", -1, 1, 13, 3, Q("2.43 in")))
sketch4.addConstraint(Sketcher.Constraint("DistanceX", -1, 1, 9, 3, Q("0.875 in")))
sketch4.addConstraint(Sketcher.Constraint("DistanceX", -1, 1, 1, 3, 15.715448))
sketch4.addConstraint(Sketcher.Constraint("DistanceY", -1, 1, 1, 3, 15.715448))
sketch4.addConstraint(Sketcher.Constraint("DistanceX", -1, 1, 4, 2, 40.32135))
sketch4.addConstraint(Sketcher.Constraint("DistanceY", -1, 1, 4, 2, 46.96674))
sketch4.addConstraint(Sketcher.Constraint("DistanceX", -1, 1, 16, 2, 96.54332))
pocket3 = body.newObject("PartDesign::Pocket", "Pocket002")
pocket3.Profile = sketch4
pocket3.Type = "ThroughAll"

sketch5 = body.newObject("Sketcher::SketchObject", "Sketch004")
sketch5.AttachmentSupport = (doc.getObject("XY_Plane"), [""])
sketch5.MapMode = "FlatFace"
sketch5.AttachmentOffset = App.Placement(V(0, 0, 0.01 * 25.4), App.Rotation())
sketch5.addGeometry(Part.LineSegment(V(82, 62, 0), V(70, 52, 0)), False)
sketch5.addGeometry(Part.ArcOfCircle(Part.Circle(V(0, 0, 0), V(0, 0, 1), 88), math.radians(23.25), math.radians(36.75)), False)
sketch5.addGeometry(Part.LineSegment(V(81, 35, 0), V(95, 40, 0)), False)
sketch5.addGeometry(Part.ArcOfCircle(Part.Circle(V(0, 0, 0), V(0, 0, 1), 103), math.radians(23.14), math.radians(36.86)), False)
sketch5.addConstraint(Sketcher.Constraint("Coincident", 0, 2, 1, 2))
sketch5.addConstraint(Sketcher.Constraint("Coincident", 1, 1, 2, 1))
sketch5.addConstraint(Sketcher.Constraint("Coincident", 2, 2, 3, 1))
sketch5.addConstraint(Sketcher.Constraint("Coincident", 3, 2, 0, 1))
sketch5.addConstraint(Sketcher.Constraint("Coincident", 1, 3, -1, 1))
sketch5.addConstraint(Sketcher.Constraint("Coincident", 3, 3, -1, 1))
sketch5.addConstraint(Sketcher.Constraint("Equal", 0, 2))
sketch5.addConstraint(Sketcher.Constraint("Radius", 1, Q("3.45 in")))
sketch5.addConstraint(Sketcher.Constraint("Radius", 3, Q("4.05 in")))
sketch5.addConstraint(Sketcher.Constraint("Angle", 0, Q("-142.5 deg")))
sketch5.addConstraint(Sketcher.Constraint("Angle", 2, Q("22.5 deg")))
sketch5.addConstraint(Sketcher.Constraint("DistanceX", -1, 1, 1, 1, 80.515269))
pocket4 = body.newObject("PartDesign::Pocket", "Pocket003")
pocket4.Profile = sketch5
pocket4.Type = "ThroughAll"

doc.recompute()
